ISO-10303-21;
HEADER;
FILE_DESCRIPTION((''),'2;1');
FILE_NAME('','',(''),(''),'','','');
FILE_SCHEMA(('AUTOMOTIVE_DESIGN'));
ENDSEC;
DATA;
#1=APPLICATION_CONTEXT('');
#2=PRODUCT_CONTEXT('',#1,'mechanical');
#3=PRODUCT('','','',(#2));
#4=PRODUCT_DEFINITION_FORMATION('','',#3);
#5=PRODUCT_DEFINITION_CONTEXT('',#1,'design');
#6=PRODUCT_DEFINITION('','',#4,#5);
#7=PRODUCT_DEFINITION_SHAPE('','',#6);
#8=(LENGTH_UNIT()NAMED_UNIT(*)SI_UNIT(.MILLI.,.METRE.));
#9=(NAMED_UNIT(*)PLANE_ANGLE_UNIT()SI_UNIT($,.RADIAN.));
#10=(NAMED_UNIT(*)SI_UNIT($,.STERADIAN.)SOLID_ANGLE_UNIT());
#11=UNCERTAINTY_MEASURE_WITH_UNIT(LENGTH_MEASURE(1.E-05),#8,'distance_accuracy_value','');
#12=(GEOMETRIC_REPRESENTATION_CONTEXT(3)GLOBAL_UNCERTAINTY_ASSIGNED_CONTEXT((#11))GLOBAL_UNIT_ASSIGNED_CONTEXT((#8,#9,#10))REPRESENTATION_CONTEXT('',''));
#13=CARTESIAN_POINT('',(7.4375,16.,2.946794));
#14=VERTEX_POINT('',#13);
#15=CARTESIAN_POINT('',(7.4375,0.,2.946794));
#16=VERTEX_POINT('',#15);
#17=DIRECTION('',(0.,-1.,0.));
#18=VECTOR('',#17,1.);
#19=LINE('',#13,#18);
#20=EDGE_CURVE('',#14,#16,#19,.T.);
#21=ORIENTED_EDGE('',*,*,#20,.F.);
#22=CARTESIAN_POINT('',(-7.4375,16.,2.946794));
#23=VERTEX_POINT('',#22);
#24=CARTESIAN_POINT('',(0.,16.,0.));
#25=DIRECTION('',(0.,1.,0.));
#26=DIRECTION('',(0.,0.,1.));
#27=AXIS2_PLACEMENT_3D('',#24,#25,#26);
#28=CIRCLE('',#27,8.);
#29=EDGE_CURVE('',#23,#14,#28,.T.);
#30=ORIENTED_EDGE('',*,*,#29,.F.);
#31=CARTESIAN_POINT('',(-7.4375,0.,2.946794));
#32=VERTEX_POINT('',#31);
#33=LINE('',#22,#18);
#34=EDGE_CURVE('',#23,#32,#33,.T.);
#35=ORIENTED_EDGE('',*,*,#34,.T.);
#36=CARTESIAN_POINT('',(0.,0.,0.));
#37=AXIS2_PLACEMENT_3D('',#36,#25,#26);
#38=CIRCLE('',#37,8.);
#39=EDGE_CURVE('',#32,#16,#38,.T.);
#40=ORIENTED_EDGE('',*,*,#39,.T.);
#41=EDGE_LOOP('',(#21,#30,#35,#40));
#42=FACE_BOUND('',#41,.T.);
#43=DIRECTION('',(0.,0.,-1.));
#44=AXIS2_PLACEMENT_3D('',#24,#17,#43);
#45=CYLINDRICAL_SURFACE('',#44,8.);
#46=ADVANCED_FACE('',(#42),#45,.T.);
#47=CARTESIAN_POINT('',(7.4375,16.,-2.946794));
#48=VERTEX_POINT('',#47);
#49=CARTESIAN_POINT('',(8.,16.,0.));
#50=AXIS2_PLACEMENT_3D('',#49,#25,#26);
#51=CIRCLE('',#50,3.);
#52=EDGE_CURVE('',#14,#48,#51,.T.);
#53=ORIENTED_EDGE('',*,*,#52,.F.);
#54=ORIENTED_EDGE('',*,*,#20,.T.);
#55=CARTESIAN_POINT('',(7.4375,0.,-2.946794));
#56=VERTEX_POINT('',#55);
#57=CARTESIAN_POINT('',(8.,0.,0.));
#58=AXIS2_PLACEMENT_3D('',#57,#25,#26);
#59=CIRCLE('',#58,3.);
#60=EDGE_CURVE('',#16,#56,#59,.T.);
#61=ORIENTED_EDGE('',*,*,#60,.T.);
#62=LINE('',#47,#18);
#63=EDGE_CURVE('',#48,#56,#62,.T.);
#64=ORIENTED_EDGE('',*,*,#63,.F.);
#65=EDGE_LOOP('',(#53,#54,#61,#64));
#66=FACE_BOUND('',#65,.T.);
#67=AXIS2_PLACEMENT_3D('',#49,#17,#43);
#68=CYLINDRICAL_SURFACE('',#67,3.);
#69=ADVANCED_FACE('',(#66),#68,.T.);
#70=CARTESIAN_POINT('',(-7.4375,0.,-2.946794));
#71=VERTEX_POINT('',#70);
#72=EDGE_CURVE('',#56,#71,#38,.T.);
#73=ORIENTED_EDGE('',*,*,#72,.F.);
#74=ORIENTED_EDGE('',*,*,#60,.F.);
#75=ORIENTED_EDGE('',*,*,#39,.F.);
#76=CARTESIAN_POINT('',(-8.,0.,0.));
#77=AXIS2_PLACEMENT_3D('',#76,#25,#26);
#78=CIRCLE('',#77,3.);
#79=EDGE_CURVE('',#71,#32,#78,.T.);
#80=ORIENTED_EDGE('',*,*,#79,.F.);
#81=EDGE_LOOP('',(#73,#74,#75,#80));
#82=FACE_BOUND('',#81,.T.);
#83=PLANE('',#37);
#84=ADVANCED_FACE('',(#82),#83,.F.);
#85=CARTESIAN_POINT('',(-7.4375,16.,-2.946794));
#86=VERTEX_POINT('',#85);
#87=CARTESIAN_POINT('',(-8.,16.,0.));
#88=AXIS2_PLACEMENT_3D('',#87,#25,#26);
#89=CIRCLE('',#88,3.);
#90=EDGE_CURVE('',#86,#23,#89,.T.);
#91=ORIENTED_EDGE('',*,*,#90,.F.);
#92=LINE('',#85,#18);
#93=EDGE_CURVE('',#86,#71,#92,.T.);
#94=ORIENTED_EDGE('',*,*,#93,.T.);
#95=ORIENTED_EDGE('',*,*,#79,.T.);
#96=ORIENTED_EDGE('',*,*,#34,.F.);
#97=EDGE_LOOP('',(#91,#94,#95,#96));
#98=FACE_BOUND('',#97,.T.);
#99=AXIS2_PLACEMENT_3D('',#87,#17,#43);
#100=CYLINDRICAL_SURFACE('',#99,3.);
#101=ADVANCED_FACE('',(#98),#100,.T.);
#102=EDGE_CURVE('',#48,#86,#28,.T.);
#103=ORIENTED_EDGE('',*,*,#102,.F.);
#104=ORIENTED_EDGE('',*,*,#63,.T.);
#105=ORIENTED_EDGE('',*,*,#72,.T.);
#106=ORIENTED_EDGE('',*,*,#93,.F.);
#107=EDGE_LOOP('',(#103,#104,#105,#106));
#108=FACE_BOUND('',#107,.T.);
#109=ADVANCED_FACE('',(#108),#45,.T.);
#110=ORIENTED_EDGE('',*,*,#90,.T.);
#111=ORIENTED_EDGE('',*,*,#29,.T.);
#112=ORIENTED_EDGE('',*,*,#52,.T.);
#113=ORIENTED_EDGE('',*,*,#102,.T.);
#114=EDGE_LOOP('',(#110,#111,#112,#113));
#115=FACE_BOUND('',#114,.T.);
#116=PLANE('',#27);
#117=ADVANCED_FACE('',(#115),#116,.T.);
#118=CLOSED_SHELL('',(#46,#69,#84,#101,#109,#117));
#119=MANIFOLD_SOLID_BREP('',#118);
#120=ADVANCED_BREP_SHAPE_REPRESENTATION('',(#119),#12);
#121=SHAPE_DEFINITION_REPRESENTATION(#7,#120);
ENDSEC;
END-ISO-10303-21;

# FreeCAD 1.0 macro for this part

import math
import FreeCAD as App
import Part
import Sketcher
from FreeCAD import Vector
Q = App.Units.Quantity

doc = App.newDocument("Part")
body = doc.addObject("PartDesign::Body", "Body")

sketch1 = doc.addObject("Sketcher::SketchObject", "Sketch")
body.addObject(sketch1)
sketch1.AttachmentSupport = (doc.XZ_Plane, [""])
sketch1.MapMode = "FlatFace"
sketch1.addGeometry([
    Part.ArcOfCircle(Part.Circle(Vector(-8, 0, 0), Vector(0, 0, 1), 3), math.radians(79.193077), math.radians(280.806923)),
    Part.ArcOfCircle(Part.Circle(Vector(0, 0, 0), Vector(0, 0, 1), 8), math.radians(21.613846), math.radians(158.386154)),
    Part.ArcOfCircle(Part.Circle(Vector(8, 0, 0), Vector(0, 0, 1), 3), math.radians(-100.806923), math.radians(100.806923)),
    Part.ArcOfCircle(Part.Circle(Vector(0, 0, 0), Vector(0, 0, 1), 8), math.radians(-158.386154), math.radians(-21.613846)),
], False)
sketch1.addConstraint([
    Sketcher.Constraint("Coincident", 0, 1, 1, 2),
    Sketcher.Constraint("Coincident", 1, 1, 2, 2),
    Sketcher.Constraint("Coincident", 2, 1, 3, 2),
    Sketcher.Constraint("Coincident", 3, 1, 0, 2),
    Sketcher.Constraint("Coincident", 1, 3, -1, 1),
    Sketcher.Constraint("Coincident", 3, 3, -1, 1),
    Sketcher.Constraint("Equal", 0, 2),
    Sketcher.Constraint("Equal", 1, 3),
    Sketcher.Constraint("Symmetric", 0, 3, 2, 3, -1, 1),
    Sketcher.Constraint("PointOnObject", 0, 3, -1),
    Sketcher.Constraint("Radius", 0, Q("3 mm")),
    Sketcher.Constraint("Radius", 1, Q("8 mm")),
    Sketcher.Constraint("DistanceX", 0, 3, -1, 1, Q("8 mm")),
])
pad1 = doc.addObject("PartDesign::Pad", "Pad")
body.addObject(pad1)
pad1.Profile = sketch1
pad1.Length = 16
pad1.Reversed = True

doc.recompute()
